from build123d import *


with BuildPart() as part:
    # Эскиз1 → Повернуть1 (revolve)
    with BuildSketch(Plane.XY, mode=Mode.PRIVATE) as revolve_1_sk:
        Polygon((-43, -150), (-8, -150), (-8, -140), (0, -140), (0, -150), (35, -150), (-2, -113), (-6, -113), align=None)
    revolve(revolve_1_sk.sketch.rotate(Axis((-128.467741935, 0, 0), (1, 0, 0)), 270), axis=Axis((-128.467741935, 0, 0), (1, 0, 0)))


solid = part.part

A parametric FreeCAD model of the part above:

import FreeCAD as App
import Part
import Sketcher
Q = App.Units.Quantity

doc = App.newDocument("Part")
params = doc.addObject("Spreadsheet::Sheet", "Params")
for row, (alias, value) in enumerate([
    ("sketch1_width", "35 mm"),
    ("sketch1_width2", "8 mm"),
    ("sketch1_width3", "4 mm"),
    ("sketch1_height", "10 mm"),
    ("revolution_angle", "360 deg"),
], start=1):
    params.set(f"A{row}", alias)
    params.set(f"B{row}", "=" + value)
    params.setAlias(f"B{row}", alias)

body = doc.addObject("PartDesign::Body", "Body")

sketch1 = body.newObject("Sketcher::SketchObject", "Sketch")
sketch1.AttachmentSupport = (doc.getObject("XY_Plane"), [""])
sketch1.MapMode = "FlatFace"
sketch1.addGeometry(Part.LineSegment(App.Vector(-43, -150, 0), App.Vector(-8, -150, 0)), False)
sketch1.addGeometry(Part.LineSegment(App.Vector(-8, -150, 0), App.Vector(-8, -140, 0)), False)
sketch1.addGeometry(Part.LineSegment(App.Vector(-8, -140, 0), App.Vector(0, -140, 0)), False)
sketch1.addGeometry(Part.LineSegment(App.Vector(0, -140, 0), App.Vector(0, -150, 0)), False)
sketch1.addGeometry(Part.LineSegment(App.Vector(0, -150, 0), App.Vector(35, -150, 0)), False)
sketch1.addGeometry(Part.LineSegment(App.Vector(35, -150, 0), App.Vector(-2, -113, 0)), False)
sketch1.addGeometry(Part.LineSegment(App.Vector(-2, -113, 0), App.Vector(-6, -113, 0)), False)
sketch1.addGeometry(Part.LineSegment(App.Vector(-6, -113, 0), App.Vector(-43, -150, 0)), False)
sketch1.addConstraint(Sketcher.Constraint("Coincident", 0, 2, 1, 1))
sketch1.addConstraint(Sketcher.Constraint("Coincident", 1, 2, 2, 1))
sketch1.addConstraint(Sketcher.Constraint("Coincident", 2, 2, 3, 1))
sketch1.addConstraint(Sketcher.Constraint("Coincident", 3, 2, 4, 1))
sketch1.addConstraint(Sketcher.Constraint("Coincident", 4, 2, 5, 1))
sketch1.addConstraint(Sketcher.Constraint("Coincident", 5, 2, 6, 1))
sketch1.addConstraint(Sketcher.Constraint("Coincident", 6, 2, 7, 1))
sketch1.addConstraint(Sketcher.Constraint("Coincident", 7, 2, 0, 1))
sketch1.addConstraint(Sketcher.Constraint("Horizontal", 0))
sketch1.addConstraint(Sketcher.Constraint("Vertical", 1))
sketch1.addConstraint(Sketcher.Constraint("Horizontal", 2))
sketch1.addConstraint(Sketcher.Constraint("Vertical", 3))
sketch1.addConstraint(Sketcher.Constraint("Horizontal", 4))
sketch1.addConstraint(Sketcher.Constraint("Horizontal", 6))
sketch1.addConstraint(Sketcher.Constraint("PointOnObject", 2, 2, -2))
sketch1.addConstraint(Sketcher.Constraint("Perpendicular", 5, 7))
sketch1.addConstraint(Sketcher.Constraint("Horizontal", 0, 2, 3, 2))
sketch1.addConstraint(Sketcher.Constraint("Equal", 0, 4))
sketch1.addConstraint(Sketcher.Constraint("Equal", 5, 7))
sketch1.addConstraint(Sketcher.Constraint("DistanceX", 0, 1, 0, 2, Q("35 mm")))
sketch1.addConstraint(Sketcher.Constraint("DistanceX", 2, 1, 2, 2, Q("8 mm")))
sketch1.addConstraint(Sketcher.Constraint("DistanceX", 6, 2, 6, 1, Q("4 mm")))
sketch1.addConstraint(Sketcher.Constraint("DistanceY", 1, 1, 1, 2, Q("10 mm")))
sketch1.addConstraint(Sketcher.Constraint("DistanceY", 0, 2, -1, 1, Q("150 mm")))
sketch1.setExpression("Constraints[19]", "Params.sketch1_width")
sketch1.setExpression("Constraints[20]", "Params.sketch1_width2")
sketch1.setExpression("Constraints[21]", "Params.sketch1_width3")
sketch1.setExpression("Constraints[22]", "Params.sketch1_height")
revolution = body.newObject("PartDesign::Revolution", "Revolution")
revolution.Profile = sketch1
revolution.ReferenceAxis = (sketch1, ["H_Axis"])
revolution.setExpression("Angle", "Params.revolution_angle")

doc.recompute()
